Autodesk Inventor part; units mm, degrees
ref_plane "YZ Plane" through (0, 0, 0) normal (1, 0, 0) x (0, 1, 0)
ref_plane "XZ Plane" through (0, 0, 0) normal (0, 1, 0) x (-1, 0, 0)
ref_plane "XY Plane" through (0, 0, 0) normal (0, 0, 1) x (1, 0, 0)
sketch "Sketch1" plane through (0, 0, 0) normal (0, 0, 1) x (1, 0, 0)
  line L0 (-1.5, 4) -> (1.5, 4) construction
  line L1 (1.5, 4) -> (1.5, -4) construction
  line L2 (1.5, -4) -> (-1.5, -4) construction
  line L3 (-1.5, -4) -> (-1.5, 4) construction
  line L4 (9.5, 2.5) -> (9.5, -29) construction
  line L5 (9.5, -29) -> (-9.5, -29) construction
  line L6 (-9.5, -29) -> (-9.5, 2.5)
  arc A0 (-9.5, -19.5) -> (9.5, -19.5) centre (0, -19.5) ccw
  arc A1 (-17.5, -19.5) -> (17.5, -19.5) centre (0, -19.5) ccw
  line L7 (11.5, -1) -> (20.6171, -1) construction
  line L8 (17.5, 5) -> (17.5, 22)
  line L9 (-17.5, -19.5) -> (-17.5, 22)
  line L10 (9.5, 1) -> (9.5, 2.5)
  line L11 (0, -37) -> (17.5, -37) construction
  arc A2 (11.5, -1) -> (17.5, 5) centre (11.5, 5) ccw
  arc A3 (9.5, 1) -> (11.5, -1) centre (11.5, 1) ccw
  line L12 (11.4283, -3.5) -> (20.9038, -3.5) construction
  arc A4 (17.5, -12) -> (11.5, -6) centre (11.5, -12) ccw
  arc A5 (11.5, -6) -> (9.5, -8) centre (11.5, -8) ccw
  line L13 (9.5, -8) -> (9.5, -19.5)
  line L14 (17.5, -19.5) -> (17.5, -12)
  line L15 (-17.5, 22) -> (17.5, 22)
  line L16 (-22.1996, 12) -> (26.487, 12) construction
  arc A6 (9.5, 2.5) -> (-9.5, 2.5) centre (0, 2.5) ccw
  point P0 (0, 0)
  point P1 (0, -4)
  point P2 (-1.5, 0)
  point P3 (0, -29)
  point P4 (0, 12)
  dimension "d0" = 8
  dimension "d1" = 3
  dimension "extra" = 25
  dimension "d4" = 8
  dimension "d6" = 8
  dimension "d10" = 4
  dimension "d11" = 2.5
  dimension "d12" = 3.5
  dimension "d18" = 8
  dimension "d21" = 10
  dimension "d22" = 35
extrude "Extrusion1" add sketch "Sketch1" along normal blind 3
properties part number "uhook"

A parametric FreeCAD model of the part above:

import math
import FreeCAD as App
import Part
import Sketcher

doc = App.newDocument("Part")
body = doc.addObject("PartDesign::Body", "Body")

sketch1 = body.newObject("Sketcher::SketchObject", "Sketch")
sketch1.AttachmentSupport = (doc.getObject("XY_Plane"), [""])
sketch1.MapMode = "FlatFace"
sketch1.addGeometry(Part.ArcOfCircle(Part.Circle(App.Vector(0, -19.5, 0), App.Vector(0, 0, 1), 9.5), math.radians(180), math.radians(360)), False)
sketch1.addGeometry(Part.LineSegment(App.Vector(-9.5, -19.5, 0), App.Vector(-9.5, 2.5, 0)), False)
sketch1.addGeometry(Part.ArcOfCircle(Part.Circle(App.Vector(0, 2.5, 0), App.Vector(0, 0, 1), 9.5), math.radians(0), math.radians(180)), False)
sketch1.addGeometry(Part.LineSegment(App.Vector(9.5, 2.5, 0), App.Vector(9.5, 1, 0)), False)
sketch1.addGeometry(Part.ArcOfCircle(Part.Circle(App.Vector(11.5, 1, 0), App.Vector(0, 0, 1), 2), math.radians(180), math.radians(270)), False)
sketch1.addGeometry(Part.ArcOfCircle(Part.Circle(App.Vector(11.5, 5, 0), App.Vector(0, 0, 1), 6), math.radians(-90), math.radians(0)), False)
sketch1.addGeometry(Part.LineSegment(App.Vector(17.5, 5, 0), App.Vector(17.5, 22, 0)), False)
sketch1.addGeometry(Part.LineSegment(App.Vector(17.5, 22, 0), App.Vector(-17.5, 22, 0)), False)
sketch1.addGeometry(Part.LineSegment(App.Vector(-17.5, 22, 0), App.Vector(-17.5, -19.5, 0)), False)
sketch1.addGeometry(Part.ArcOfCircle(Part.Circle(App.Vector(0, -19.5, 0), App.Vector(0, 0, 1), 17.5), math.radians(180), math.radians(360)), False)
sketch1.addGeometry(Part.LineSegment(App.Vector(17.5, -19.5, 0), App.Vector(17.5, -12, 0)), False)
sketch1.addGeometry(Part.ArcOfCircle(Part.Circle(App.Vector(11.5, -12, 0), App.Vector(0, 0, 1), 6), math.radians(0), math.radians(90)), False)
sketch1.addGeometry(Part.ArcOfCircle(Part.Circle(App.Vector(11.5, -8, 0), App.Vector(0, 0, 1), 2), math.radians(90), math.radians(180)), False)
sketch1.addGeometry(Part.LineSegment(App.Vector(9.5, -8, 0), App.Vector(9.5, -19.5, 0)), False)
sketch1.addConstraint(Sketcher.Constraint("Tangent", 0, 1, 1, 1))
sketch1.addConstraint(Sketcher.Constraint("Tangent", 1, 2, 2, 2))
sketch1.addConstraint(Sketcher.Constraint("Tangent", 2, 1, 3, 1))
sketch1.addConstraint(Sketcher.Constraint("Tangent", 3, 2, 4, 1))
sketch1.addConstraint(Sketcher.Constraint("Tangent", 4, 2, 5, 1))
sketch1.addConstraint(Sketcher.Constraint("Tangent", 5, 2, 6, 1))
sketch1.addConstraint(Sketcher.Constraint("Coincident", 6, 2, 7, 1))
sketch1.addConstraint(Sketcher.Constraint("Coincident", 7, 2, 8, 1))
sketch1.addConstraint(Sketcher.Constraint("Tangent", 8, 2, 9, 1))
sketch1.addConstraint(Sketcher.Constraint("Tangent", 9, 2, 10, 1))
sketch1.addConstraint(Sketcher.Constraint("Tangent", 10, 2, 11, 1))
sketch1.addConstraint(Sketcher.Constraint("Tangent", 11, 2, 12, 1))
sketch1.addConstraint(Sketcher.Constraint("Tangent", 12, 2, 13, 1))
sketch1.addConstraint(Sketcher.Constraint("Tangent", 13, 2, 0, 2))
sketch1.addConstraint(Sketcher.Constraint("Vertical", 1))
sketch1.addConstraint(Sketcher.Constraint("Vertical", 3))
sketch1.addConstraint(Sketcher.Constraint("Vertical", 6))
sketch1.addConstraint(Sketcher.Constraint("Horizontal", 7))
sketch1.addConstraint(Sketcher.Constraint("Vertical", 8))
sketch1.addConstraint(Sketcher.Constraint("Vertical", 10))
sketch1.addConstraint(Sketcher.Constraint("Vertical", 13))
sketch1.addConstraint(Sketcher.Constraint("Coincident", 9, 3, 0, 3))
sketch1.addConstraint(Sketcher.Constraint("Equal", 0, 2))
sketch1.addConstraint(Sketcher.Constraint("Equal", 5, 11))
sketch1.addConstraint(Sketcher.Constraint("Equal", 4, 12))
sketch1.addConstraint(Sketcher.Constraint("PointOnObject", 0, 3, -2))
sketch1.addConstraint(Sketcher.Constraint("Vertical", 4, 3, 5, 3))
sketch1.addConstraint(Sketcher.Constraint("Vertical", 5, 3, 11, 3))
sketch1.addConstraint(Sketcher.Constraint("Radius", 4, 2.0))
sketch1.addConstraint(Sketcher.Constraint("Radius", 9, 17.5))
sketch1.addConstraint(Sketcher.Constraint("DistanceY", 12, 3, -1, 1, 8.0))
sketch1.addConstraint(Sketcher.Constraint("Radius", 5, 6.0))
sketch1.addConstraint(Sketcher.Constraint("DistanceY", -1, 1, 2, 3, 2.5))
sketch1.addConstraint(Sketcher.Constraint("DistanceY", 2, 3, 5, 3, 2.5))
sketch1.addConstraint(Sketcher.Constraint("DistanceY", 1, 1, 1, 2, 22.0))
sketch1.addConstraint(Sketcher.Constraint("DistanceY", 6, 1, 6, 2, 17.0))
pad1 = body.newObject("PartDesign::Pad", "Pad")
pad1.Profile = sketch1
pad1.Length = 3

doc.recompute()
